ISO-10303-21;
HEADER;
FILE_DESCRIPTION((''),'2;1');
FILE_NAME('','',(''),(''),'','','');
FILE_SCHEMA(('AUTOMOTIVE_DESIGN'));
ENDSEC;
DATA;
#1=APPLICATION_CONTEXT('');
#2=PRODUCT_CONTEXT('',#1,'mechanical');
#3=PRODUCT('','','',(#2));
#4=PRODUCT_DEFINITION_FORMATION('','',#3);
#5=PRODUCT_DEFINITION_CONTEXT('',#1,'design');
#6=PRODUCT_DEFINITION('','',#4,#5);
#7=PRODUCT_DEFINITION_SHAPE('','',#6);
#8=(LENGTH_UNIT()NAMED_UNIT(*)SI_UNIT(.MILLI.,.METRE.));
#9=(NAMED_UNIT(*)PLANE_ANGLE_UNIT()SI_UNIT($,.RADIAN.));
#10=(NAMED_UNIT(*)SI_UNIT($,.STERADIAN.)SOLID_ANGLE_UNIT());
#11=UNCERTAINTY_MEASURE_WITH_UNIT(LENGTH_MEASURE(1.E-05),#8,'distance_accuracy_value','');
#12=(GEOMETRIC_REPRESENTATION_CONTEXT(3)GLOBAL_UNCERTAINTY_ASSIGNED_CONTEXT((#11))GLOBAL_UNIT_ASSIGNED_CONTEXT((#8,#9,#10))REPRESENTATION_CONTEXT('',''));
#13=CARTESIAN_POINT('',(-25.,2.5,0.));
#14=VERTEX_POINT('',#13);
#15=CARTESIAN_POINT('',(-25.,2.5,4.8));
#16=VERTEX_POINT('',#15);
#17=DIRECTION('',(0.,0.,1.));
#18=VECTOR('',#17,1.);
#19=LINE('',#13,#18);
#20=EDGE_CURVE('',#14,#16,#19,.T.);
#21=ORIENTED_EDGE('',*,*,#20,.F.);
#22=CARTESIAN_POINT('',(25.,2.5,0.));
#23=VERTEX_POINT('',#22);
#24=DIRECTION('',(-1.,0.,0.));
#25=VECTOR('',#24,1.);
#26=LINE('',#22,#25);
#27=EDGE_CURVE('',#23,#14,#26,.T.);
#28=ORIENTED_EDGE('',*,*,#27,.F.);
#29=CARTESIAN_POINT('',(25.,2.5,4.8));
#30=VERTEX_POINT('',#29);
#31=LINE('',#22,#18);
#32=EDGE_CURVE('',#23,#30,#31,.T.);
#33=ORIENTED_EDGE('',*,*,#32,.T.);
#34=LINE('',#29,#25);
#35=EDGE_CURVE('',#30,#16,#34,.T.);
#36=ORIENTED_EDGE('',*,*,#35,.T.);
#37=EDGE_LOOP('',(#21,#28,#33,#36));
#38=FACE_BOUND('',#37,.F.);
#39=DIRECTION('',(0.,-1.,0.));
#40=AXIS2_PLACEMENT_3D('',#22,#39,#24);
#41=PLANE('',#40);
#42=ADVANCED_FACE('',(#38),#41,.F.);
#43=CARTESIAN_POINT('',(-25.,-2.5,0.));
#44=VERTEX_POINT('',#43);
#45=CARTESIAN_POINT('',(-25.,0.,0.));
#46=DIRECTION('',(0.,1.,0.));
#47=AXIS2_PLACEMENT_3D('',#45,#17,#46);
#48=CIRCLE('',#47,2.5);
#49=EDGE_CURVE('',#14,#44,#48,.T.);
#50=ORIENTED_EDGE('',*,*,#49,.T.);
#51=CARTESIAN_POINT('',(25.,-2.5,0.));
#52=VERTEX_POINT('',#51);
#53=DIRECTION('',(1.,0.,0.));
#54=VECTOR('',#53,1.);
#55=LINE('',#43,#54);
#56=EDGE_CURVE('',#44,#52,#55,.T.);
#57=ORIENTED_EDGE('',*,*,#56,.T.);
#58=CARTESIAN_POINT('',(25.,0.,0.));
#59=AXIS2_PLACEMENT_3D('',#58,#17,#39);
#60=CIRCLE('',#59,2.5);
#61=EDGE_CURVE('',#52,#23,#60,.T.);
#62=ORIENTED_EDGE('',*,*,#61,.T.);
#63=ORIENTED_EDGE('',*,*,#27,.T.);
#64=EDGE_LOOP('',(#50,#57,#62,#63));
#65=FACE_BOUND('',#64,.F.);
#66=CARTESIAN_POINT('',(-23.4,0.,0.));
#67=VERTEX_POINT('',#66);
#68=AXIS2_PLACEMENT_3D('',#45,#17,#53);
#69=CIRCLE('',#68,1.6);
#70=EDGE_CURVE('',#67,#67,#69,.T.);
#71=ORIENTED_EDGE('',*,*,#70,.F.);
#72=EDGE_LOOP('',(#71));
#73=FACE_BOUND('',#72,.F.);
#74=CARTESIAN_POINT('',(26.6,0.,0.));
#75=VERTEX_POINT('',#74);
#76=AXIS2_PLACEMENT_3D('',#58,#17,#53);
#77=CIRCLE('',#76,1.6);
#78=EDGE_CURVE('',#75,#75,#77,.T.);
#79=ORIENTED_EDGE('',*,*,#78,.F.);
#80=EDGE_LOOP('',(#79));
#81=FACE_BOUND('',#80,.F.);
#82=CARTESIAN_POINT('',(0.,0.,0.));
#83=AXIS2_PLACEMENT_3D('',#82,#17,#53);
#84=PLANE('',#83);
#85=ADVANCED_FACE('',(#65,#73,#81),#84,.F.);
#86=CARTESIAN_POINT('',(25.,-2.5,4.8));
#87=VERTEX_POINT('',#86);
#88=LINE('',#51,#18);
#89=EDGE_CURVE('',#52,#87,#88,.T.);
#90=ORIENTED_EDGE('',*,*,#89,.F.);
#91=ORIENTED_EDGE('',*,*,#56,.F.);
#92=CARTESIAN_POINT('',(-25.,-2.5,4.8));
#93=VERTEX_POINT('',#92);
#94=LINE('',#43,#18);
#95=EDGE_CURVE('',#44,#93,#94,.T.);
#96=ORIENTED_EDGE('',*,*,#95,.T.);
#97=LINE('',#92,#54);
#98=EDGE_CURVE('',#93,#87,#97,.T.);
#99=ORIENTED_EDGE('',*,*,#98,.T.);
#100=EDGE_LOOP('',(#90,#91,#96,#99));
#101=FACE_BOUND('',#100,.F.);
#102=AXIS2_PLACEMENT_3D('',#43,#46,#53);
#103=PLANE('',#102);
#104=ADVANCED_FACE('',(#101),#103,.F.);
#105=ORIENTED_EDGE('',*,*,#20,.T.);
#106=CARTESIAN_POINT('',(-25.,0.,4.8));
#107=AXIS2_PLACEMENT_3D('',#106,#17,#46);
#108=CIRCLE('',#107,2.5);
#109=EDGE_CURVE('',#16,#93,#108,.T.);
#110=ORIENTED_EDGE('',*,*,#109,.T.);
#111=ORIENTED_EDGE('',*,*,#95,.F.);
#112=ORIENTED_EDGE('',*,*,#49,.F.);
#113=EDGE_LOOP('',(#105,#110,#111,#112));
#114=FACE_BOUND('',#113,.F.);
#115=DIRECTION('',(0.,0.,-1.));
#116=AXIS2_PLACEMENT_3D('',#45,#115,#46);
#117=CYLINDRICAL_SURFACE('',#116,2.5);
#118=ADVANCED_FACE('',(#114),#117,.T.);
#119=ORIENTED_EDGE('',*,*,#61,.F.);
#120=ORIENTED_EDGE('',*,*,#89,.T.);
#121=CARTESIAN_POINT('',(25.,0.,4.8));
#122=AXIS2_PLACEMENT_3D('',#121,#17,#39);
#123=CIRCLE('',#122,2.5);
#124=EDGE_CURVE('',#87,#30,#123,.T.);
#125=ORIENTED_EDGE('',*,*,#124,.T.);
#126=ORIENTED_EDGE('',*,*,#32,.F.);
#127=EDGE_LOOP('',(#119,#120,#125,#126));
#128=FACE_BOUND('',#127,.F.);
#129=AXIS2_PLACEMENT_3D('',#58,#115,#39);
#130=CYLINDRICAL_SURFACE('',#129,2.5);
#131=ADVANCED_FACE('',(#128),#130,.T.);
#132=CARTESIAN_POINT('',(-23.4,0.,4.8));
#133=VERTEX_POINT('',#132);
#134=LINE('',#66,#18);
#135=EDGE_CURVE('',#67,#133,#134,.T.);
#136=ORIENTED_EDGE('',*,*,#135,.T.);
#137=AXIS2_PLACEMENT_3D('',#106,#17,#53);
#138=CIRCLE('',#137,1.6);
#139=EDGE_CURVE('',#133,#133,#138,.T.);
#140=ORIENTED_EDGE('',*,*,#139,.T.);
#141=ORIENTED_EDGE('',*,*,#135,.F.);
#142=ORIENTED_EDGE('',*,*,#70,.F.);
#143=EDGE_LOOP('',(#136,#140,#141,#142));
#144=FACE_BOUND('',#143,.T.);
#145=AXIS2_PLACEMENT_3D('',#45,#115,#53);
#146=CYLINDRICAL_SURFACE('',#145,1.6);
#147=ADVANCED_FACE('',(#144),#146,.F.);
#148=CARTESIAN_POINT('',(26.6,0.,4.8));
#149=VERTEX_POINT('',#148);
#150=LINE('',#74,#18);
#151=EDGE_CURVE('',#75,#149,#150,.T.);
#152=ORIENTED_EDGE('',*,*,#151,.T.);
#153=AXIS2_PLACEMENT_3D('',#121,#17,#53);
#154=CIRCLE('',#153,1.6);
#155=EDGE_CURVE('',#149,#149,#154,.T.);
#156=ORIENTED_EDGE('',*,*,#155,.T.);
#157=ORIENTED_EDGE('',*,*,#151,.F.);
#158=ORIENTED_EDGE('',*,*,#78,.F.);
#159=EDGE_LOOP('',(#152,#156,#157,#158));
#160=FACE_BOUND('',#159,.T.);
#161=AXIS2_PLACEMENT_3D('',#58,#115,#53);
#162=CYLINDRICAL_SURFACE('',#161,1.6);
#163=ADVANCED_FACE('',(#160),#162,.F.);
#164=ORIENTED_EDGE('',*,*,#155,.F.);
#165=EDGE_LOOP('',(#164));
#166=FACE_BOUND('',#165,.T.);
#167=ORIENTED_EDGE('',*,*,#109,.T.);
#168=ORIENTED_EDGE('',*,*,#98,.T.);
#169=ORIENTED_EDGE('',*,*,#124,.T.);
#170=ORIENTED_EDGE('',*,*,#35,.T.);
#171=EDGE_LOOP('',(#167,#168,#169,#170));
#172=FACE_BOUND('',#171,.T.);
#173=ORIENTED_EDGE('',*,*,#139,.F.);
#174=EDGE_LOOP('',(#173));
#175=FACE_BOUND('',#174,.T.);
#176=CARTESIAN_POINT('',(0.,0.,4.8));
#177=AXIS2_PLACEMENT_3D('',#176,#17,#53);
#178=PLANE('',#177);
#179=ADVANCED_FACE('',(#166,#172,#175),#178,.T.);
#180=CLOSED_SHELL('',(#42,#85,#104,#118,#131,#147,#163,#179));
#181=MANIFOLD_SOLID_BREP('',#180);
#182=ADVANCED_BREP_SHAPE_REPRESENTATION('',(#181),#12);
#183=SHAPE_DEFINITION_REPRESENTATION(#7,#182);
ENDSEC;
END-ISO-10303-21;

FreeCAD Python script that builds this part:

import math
import FreeCAD as App
import Part
import Sketcher

V = App.Vector
Q = App.Units.Quantity

doc = App.newDocument("Part")
body = doc.addObject("PartDesign::Body", "Body")

# Sketch on XY plane
sketch1 = body.newObject("Sketcher::SketchObject", "Sketch")
sketch1.AttachmentSupport = (doc.getObject("XY_Plane"), [""])
sketch1.MapMode = "FlatFace"
sketch1.addGeometry([
    Part.ArcOfCircle(Part.Circle(V(-25, 0, 0), V(0, 0, 1), 2.5), math.radians(90), math.radians(270)),  # 0
    Part.LineSegment(V(-25, -2.5, 0), V(25, -2.5, 0)),  # 1
    Part.ArcOfCircle(Part.Circle(V(25, 0, 0), V(0, 0, 1), 2.5), math.radians(-90), math.radians(90)),  # 2
    Part.LineSegment(V(25, 2.5, 0), V(-25, 2.5, 0)),  # 3
    Part.Circle(V(-25, 0, 0), V(0, 0, 1), 1.6),  # 4
    Part.Circle(V(25, 0, 0), V(0, 0, 1), 1.6),  # 5
], False)
sketch1.addConstraint([
    Sketcher.Constraint("Tangent", 0, 2, 1, 1),
    Sketcher.Constraint("Tangent", 1, 2, 2, 1),
    Sketcher.Constraint("Tangent", 2, 2, 3, 1),
    Sketcher.Constraint("Tangent", 3, 2, 0, 1),
    Sketcher.Constraint("Horizontal", 1),
    Sketcher.Constraint("Horizontal", 3),
    Sketcher.Constraint("Coincident", 4, 3, 0, 3),
    Sketcher.Constraint("Coincident", 5, 3, 2, 3),
    Sketcher.Constraint("Equal", 4, 5),
    Sketcher.Constraint("Symmetric", 0, 3, 2, 3, -1, 1),
    Sketcher.Constraint("Diameter", 4, Q("3.2 mm")),
    Sketcher.Constraint("Radius", 0, Q("2.5 mm")),
    Sketcher.Constraint("DistanceX", 1, 1, 1, 2, Q("50 mm")),
])
pad1 = body.newObject("PartDesign::Pad", "Pad")
pad1.Profile = sketch1
pad1.Length = 4.8

doc.recompute()
